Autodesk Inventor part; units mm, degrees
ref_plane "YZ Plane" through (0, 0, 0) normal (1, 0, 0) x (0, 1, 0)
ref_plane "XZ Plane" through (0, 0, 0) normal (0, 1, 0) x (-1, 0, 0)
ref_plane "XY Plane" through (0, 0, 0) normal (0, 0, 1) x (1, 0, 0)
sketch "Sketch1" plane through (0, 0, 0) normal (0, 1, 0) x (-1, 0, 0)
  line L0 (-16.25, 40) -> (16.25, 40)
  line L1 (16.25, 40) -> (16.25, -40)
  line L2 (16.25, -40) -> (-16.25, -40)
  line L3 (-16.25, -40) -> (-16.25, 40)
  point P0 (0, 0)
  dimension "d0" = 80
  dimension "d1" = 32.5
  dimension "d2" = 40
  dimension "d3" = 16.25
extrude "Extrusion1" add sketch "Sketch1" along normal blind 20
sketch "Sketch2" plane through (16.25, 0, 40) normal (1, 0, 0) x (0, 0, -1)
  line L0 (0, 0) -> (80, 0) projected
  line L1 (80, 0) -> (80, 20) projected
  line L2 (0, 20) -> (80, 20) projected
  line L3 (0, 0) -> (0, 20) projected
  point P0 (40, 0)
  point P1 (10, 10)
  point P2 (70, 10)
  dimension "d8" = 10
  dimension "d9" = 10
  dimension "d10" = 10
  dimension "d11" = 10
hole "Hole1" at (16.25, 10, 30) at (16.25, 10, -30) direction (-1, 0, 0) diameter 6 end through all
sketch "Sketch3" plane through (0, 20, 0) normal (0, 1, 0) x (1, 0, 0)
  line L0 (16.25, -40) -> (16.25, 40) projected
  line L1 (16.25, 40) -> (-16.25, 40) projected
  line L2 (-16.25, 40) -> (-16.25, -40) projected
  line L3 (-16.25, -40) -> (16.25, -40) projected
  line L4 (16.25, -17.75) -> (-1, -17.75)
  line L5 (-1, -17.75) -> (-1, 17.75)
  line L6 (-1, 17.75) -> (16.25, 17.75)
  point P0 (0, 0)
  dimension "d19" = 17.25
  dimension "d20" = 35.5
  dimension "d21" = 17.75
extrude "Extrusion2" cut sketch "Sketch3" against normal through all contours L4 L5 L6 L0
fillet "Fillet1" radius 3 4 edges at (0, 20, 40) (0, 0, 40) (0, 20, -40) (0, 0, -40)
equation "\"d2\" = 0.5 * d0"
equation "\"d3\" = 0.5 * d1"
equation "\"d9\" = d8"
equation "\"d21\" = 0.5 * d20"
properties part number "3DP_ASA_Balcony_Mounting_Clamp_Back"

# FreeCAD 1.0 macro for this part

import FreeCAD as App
import Part
import Sketcher
from FreeCAD import Vector


def edges_at(feature, points):
    """Names of the edges that pass closest to the given points."""
    edges = feature.Shape.Edges
    near = lambda p: min(range(len(edges)), key=lambda i: edges[i].distToShape(Part.Vertex(*p))[0])
    return sorted({f"Edge{near(p) + 1}" for p in points})

doc = App.newDocument("Part")
body = doc.addObject("PartDesign::Body", "Body")

# Sketch on XZ plane
sketch1 = body.newObject("Sketcher::SketchObject", "Sketch")
sketch1.AttachmentSupport = (doc.getObject("XZ_Plane"), [""])
sketch1.MapMode = "FlatFace"
sketch1.addGeometry([
    Part.LineSegment(Vector(-16.25, 40, 0), Vector(16.25, 40, 0)),
    Part.LineSegment(Vector(16.25, 40, 0), Vector(16.25, -40, 0)),
    Part.LineSegment(Vector(16.25, -40, 0), Vector(-16.25, -40, 0)),
    Part.LineSegment(Vector(-16.25, -40, 0), Vector(-16.25, 40, 0)),
], False)
sketch1.addConstraint([
    Sketcher.Constraint("Coincident", 0, 2, 1, 1),
    Sketcher.Constraint("Coincident", 1, 2, 2, 1),
    Sketcher.Constraint("Coincident", 2, 2, 3, 1),
    Sketcher.Constraint("Coincident", 3, 2, 0, 1),
    Sketcher.Constraint("Horizontal", 0),
    Sketcher.Constraint("Vertical", 1),
    Sketcher.Constraint("Horizontal", 2),
    Sketcher.Constraint("Vertical", 3),
    Sketcher.Constraint("Symmetric", 0, 2, 2, 2, -1, 1),
    Sketcher.Constraint("DistanceY", 1, 2, 1, 1, 80.0),
    Sketcher.Constraint("DistanceX", 0, 1, 0, 2, 32.5),
])
pad1 = body.newObject("PartDesign::Pad", "Pad")
pad1.Profile = sketch1
pad1.Length = 20
pad1.Reversed = True

# Sketch on YZ plane
sketch2 = body.newObject("Sketcher::SketchObject", "Sketch001")
sketch2.AttachmentSupport = (doc.getObject("YZ_Plane"), [""])
sketch2.MapMode = "FlatFace"
sketch2.AttachmentOffset = App.Placement(Vector(0, 0, 16.25), App.Rotation())
sketch2.addGeometry([
    Part.Circle(Vector(10, 30, 0), Vector(0, 0, 1), 3),
    Part.Circle(Vector(10, -30, 0), Vector(0, 0, 1), 3),
], False)
sketch2.addConstraint([
    Sketcher.Constraint("Equal", 0, 1),
    Sketcher.Constraint("Symmetric", 0, 3, 1, 3, -1),
    Sketcher.Constraint("Diameter", 0, 6.0),
    Sketcher.Constraint("DistanceX", -1, 1, 0, 3, 10.0),
    Sketcher.Constraint("DistanceY", -1, 1, 0, 3, 30.0),
])
doc.recompute()
hole = body.newObject("PartDesign::Hole", "Hole")
hole.Profile = sketch2
hole.ThreadType = "None"
hole.Diameter = 6
hole.DepthType = "ThroughAll"

# Sketch on XZ plane
sketch3 = body.newObject("Sketcher::SketchObject", "Sketch002")
sketch3.AttachmentSupport = (doc.getObject("XZ_Plane"), [""])
sketch3.MapMode = "FlatFace"
sketch3.AttachmentOffset = App.Placement(Vector(0, 0, -20), App.Rotation())
sketch3.addGeometry([
    Part.LineSegment(Vector(-1, 17.75, 0), Vector(16.25, 17.75, 0)),
    Part.LineSegment(Vector(16.25, 17.75, 0), Vector(16.25, -17.75, 0)),
    Part.LineSegment(Vector(16.25, -17.75, 0), Vector(-1, -17.75, 0)),
    Part.LineSegment(Vector(-1, -17.75, 0), Vector(-1, 17.75, 0)),
], False)
sketch3.addConstraint([
    Sketcher.Constraint("Coincident", 0, 2, 1, 1),
    Sketcher.Constraint("Coincident", 1, 2, 2, 1),
    Sketcher.Constraint("Coincident", 2, 2, 3, 1),
    Sketcher.Constraint("Coincident", 3, 2, 0, 1),
    Sketcher.Constraint("Horizontal", 0),
    Sketcher.Constraint("Vertical", 1),
    Sketcher.Constraint("Horizontal", 2),
    Sketcher.Constraint("Vertical", 3),
    Sketcher.Constraint("DistanceY", 1, 2, 1, 1, 35.5),
    Sketcher.Constraint("DistanceX", 0, 1, 0, 2, 17.25),
    Sketcher.Constraint("DistanceY", -1, 1, 0, 2, 17.75),
    Sketcher.Constraint("DistanceX", 2, 2, -1, 1, 1.0),
])
pocket1 = body.newObject("PartDesign::Pocket", "Pocket")
pocket1.Profile = sketch3
pocket1.Type = "ThroughAll"
pocket1.Reversed = True
doc.recompute()

fillet = body.newObject("PartDesign::Fillet", "Fillet")
fillet.Base = (pocket1, edges_at(pocket1, [
    (0, 20, 40),
    (0, 0, 40),
    (0, 20, -40),
    (0, 0, -40),
]))
fillet.Radius = 3

doc.recompute()
